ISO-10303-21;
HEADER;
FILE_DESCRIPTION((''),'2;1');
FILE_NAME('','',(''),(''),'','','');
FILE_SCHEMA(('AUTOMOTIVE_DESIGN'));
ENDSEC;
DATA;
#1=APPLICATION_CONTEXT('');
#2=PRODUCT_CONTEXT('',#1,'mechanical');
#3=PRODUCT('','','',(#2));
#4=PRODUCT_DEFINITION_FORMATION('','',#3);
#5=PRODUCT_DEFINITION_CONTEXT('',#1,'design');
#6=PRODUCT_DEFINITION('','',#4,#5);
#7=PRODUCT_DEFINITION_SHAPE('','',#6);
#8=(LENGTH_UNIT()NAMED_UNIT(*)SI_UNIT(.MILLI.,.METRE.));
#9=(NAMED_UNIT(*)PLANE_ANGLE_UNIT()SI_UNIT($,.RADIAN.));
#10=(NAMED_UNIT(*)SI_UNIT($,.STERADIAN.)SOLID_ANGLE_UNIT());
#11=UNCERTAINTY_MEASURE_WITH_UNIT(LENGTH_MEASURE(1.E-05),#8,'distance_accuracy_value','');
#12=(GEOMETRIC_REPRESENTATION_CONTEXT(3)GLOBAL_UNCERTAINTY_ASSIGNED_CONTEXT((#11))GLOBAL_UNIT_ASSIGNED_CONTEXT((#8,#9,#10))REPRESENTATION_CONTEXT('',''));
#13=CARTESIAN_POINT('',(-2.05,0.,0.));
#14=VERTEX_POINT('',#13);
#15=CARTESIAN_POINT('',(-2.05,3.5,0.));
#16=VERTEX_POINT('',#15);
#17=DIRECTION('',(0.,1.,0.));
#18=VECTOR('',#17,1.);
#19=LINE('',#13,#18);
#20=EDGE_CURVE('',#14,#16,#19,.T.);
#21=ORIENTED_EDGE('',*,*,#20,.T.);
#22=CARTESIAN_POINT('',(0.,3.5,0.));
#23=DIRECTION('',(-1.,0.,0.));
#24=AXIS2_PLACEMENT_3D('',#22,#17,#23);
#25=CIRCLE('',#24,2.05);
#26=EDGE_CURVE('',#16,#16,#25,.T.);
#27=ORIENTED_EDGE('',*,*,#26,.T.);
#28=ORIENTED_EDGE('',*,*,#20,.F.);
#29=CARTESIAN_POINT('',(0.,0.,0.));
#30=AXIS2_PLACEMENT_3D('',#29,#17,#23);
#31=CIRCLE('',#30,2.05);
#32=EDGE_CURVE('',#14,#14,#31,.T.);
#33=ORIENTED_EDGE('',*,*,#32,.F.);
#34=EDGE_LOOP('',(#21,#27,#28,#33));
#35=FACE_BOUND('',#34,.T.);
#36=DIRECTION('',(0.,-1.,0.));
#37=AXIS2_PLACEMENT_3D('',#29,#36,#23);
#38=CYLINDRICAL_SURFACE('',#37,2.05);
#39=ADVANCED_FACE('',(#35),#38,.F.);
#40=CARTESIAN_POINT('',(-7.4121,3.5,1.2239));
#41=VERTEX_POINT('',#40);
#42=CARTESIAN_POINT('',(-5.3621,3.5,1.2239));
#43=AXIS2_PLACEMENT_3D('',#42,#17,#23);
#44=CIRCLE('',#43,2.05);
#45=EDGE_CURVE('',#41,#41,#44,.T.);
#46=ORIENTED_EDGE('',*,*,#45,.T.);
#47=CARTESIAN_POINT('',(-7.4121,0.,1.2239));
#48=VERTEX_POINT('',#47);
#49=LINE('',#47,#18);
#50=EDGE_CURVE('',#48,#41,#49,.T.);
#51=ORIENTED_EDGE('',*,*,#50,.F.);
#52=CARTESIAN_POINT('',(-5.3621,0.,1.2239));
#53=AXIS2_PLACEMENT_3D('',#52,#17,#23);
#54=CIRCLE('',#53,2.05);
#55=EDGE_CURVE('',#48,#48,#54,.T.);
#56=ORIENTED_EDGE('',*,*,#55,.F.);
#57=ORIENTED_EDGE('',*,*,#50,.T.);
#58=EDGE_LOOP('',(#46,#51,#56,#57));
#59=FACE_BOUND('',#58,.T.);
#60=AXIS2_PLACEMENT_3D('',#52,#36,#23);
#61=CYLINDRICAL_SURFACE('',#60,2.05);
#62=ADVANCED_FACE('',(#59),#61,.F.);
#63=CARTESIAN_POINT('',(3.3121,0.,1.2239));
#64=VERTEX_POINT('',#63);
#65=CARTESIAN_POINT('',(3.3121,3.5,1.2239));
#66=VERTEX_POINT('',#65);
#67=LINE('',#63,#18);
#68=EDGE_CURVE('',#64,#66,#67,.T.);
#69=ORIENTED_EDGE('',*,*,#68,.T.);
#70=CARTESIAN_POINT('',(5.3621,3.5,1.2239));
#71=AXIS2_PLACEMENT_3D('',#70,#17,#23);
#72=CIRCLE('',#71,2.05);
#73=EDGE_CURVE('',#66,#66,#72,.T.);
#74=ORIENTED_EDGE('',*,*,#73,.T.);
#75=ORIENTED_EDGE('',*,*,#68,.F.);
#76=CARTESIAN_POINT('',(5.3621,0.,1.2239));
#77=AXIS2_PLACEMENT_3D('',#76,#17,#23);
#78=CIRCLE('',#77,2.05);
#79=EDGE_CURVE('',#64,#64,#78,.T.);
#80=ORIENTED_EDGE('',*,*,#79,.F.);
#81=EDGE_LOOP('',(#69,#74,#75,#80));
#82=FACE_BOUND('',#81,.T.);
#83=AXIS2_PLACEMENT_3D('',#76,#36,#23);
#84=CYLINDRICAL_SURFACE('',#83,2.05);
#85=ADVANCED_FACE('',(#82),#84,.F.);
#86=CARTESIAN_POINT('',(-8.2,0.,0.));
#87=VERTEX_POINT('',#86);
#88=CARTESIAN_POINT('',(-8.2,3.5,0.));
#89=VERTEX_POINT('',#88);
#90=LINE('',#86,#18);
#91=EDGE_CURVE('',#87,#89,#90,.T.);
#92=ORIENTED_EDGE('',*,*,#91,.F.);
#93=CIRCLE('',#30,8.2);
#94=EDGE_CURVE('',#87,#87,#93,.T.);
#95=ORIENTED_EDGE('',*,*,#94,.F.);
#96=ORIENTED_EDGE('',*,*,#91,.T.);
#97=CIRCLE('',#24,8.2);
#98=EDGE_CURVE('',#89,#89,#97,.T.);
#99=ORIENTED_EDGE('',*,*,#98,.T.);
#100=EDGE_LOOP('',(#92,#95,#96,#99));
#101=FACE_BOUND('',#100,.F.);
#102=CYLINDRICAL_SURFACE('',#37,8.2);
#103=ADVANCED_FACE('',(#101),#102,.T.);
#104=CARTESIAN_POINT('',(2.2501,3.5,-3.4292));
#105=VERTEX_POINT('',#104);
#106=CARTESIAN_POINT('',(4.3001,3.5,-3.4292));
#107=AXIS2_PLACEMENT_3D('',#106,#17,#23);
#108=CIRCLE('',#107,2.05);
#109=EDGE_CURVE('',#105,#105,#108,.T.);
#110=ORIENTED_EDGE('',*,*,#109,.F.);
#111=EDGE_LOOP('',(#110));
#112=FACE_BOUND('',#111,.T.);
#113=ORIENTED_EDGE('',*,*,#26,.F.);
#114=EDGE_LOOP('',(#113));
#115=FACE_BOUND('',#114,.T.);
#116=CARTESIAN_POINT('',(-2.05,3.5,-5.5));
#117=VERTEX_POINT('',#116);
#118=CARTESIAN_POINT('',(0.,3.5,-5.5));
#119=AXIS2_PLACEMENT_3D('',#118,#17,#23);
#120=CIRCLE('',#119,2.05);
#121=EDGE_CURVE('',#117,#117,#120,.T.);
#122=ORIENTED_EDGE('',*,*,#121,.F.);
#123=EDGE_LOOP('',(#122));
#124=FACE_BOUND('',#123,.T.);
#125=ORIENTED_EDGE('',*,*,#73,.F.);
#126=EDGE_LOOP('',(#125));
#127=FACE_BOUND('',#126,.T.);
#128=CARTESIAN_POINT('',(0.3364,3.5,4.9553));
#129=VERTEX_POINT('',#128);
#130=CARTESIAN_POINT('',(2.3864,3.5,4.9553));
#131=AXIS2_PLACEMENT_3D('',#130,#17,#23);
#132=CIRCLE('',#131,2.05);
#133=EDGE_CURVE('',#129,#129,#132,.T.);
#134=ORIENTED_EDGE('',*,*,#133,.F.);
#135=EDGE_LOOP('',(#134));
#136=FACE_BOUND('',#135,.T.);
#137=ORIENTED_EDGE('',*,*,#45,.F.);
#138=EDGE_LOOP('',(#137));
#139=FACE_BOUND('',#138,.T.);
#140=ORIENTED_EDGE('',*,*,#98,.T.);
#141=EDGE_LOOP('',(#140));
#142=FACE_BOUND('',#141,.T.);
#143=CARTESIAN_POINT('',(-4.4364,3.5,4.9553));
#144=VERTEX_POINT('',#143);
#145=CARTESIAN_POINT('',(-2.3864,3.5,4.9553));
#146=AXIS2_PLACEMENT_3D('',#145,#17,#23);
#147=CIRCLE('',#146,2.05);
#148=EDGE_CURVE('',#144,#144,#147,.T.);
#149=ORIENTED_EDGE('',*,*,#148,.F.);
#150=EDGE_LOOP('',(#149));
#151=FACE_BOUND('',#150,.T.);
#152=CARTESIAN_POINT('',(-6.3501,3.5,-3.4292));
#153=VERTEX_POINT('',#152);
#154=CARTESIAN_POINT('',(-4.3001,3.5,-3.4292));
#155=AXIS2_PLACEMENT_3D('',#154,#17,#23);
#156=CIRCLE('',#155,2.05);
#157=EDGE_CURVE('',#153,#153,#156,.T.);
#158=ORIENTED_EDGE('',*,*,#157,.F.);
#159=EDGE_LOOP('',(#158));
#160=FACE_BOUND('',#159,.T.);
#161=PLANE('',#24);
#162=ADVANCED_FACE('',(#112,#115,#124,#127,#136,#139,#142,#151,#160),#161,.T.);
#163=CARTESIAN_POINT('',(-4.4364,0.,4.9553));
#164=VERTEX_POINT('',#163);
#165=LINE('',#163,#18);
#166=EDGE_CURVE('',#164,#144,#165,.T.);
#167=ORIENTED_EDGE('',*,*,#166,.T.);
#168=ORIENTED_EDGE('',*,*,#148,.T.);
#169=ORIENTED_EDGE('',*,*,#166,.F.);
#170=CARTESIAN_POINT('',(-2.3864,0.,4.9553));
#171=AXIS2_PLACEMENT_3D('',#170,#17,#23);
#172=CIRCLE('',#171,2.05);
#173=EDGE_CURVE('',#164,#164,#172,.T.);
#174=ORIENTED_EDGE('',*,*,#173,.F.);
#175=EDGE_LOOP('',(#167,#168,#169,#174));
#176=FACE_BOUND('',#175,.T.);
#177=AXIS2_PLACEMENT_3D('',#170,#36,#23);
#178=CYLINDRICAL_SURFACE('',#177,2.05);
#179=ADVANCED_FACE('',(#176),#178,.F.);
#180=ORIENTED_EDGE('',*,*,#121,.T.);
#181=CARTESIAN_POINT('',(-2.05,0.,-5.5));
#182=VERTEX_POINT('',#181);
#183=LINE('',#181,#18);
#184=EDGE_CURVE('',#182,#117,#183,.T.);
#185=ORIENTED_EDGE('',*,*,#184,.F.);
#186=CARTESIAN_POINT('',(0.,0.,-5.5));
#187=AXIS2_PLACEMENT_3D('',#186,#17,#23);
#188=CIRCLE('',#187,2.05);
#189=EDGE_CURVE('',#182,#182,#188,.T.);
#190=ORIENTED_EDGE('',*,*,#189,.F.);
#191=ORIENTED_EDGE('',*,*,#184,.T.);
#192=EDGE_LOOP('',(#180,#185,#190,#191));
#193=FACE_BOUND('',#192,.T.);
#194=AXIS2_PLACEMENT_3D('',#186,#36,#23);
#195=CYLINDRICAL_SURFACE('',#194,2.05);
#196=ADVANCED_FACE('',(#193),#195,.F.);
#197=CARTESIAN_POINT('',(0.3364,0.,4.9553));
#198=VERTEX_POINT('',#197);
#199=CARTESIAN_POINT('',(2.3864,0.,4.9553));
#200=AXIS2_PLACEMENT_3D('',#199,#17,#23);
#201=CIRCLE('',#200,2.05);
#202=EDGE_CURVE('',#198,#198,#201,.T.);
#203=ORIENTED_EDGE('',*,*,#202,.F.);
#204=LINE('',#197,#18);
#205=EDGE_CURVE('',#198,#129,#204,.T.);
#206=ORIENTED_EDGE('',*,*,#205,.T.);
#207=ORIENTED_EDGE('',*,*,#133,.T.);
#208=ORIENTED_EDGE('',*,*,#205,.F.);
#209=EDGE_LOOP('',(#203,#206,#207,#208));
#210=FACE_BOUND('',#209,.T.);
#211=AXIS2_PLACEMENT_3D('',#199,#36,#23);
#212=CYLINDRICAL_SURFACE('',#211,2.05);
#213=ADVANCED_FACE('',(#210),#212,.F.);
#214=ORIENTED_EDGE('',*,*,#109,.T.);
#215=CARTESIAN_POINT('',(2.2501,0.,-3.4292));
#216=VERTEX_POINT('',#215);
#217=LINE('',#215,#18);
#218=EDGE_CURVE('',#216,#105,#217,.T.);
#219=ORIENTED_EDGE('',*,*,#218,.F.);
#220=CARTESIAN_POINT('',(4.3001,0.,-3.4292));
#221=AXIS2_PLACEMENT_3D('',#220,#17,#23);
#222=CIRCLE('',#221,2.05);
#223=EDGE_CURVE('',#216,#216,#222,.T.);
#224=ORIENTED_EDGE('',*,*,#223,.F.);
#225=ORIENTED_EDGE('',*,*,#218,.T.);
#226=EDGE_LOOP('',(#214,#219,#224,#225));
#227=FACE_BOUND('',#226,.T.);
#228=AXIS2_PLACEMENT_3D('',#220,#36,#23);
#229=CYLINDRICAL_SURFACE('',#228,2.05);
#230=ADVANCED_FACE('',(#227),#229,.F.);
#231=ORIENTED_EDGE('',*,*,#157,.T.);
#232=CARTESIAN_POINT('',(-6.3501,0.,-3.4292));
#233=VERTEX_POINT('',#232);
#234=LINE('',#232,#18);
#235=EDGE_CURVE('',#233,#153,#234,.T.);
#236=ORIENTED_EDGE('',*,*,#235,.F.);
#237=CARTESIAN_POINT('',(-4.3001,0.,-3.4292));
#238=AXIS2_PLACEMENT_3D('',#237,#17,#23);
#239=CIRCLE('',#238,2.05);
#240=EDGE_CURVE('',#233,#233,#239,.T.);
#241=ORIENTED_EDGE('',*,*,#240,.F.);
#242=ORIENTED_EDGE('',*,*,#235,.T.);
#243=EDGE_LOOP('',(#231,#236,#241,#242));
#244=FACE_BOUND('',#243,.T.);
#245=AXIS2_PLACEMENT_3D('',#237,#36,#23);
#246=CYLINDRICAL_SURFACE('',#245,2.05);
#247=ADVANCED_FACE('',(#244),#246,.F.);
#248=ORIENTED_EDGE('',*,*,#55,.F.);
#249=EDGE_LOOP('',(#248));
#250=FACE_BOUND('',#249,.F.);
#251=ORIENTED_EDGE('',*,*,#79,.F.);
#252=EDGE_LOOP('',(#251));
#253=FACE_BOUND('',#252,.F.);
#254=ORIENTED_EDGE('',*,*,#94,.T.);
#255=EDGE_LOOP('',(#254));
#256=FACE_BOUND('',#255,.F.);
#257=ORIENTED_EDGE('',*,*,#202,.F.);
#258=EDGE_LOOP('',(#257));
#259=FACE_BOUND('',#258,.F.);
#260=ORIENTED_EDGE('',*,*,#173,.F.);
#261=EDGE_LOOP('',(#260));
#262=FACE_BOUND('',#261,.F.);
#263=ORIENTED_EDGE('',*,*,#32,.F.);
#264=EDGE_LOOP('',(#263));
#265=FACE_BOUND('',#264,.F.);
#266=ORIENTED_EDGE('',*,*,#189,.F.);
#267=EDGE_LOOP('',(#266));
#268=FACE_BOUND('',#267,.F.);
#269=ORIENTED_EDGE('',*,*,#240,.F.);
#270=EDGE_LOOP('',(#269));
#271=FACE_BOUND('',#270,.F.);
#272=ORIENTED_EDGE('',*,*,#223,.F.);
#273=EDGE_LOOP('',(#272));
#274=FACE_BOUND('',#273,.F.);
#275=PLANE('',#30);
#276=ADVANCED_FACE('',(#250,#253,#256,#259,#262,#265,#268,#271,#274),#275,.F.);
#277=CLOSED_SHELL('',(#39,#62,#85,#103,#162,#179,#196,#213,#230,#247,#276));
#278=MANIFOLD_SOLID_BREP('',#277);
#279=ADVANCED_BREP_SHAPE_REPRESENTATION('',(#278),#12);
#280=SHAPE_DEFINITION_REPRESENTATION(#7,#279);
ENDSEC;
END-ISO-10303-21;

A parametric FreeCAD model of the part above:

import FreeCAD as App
import Part
import Sketcher
from FreeCAD import Vector
Q = App.Units.Quantity

doc = App.newDocument("Part")
body = doc.addObject("PartDesign::Body", "Body")

sketch1 = body.newObject("Sketcher::SketchObject", "Sketch")
sketch1.AttachmentSupport = (doc.getObject("XZ_Plane"), [""])
sketch1.MapMode = "FlatFace"
sketch1.addGeometry(Part.Circle(Vector(0, 0, 0), Vector(0, 0, 1), 8.2), False)
sketch1.addGeometry(Part.Circle(Vector(4.3, -3.4, 0), Vector(0, 0, 1), 2), False)
sketch1.addGeometry(Part.Circle(Vector(0, -5.5, 0), Vector(0, 0, 1), 2), False)
sketch1.addGeometry(Part.Circle(Vector(-4.3, -3.4, 0), Vector(0, 0, 1), 2), False)
sketch1.addGeometry(Part.Circle(Vector(5.4, 1.2, 0), Vector(0, 0, 1), 2), False)
sketch1.addGeometry(Part.Circle(Vector(2.4, 5, 0), Vector(0, 0, 1), 2), False)
sketch1.addGeometry(Part.Circle(Vector(0, 0, 0), Vector(0, 0, 1), 2), False)
sketch1.addGeometry(Part.Circle(Vector(-5.4, 1.2, 0), Vector(0, 0, 1), 2), False)
sketch1.addGeometry(Part.Circle(Vector(-2.4, 5, 0), Vector(0, 0, 1), 2), False)
sketch1.addConstraint(Sketcher.Constraint("Coincident", 0, 3, -1, 1))
sketch1.addConstraint(Sketcher.Constraint("Coincident", 6, 3, -1, 1))
sketch1.addConstraint(Sketcher.Constraint("Equal", 1, 2))
sketch1.addConstraint(Sketcher.Constraint("Equal", 2, 3))
sketch1.addConstraint(Sketcher.Constraint("Equal", 3, 4))
sketch1.addConstraint(Sketcher.Constraint("Equal", 4, 5))
sketch1.addConstraint(Sketcher.Constraint("Equal", 5, 6))
sketch1.addConstraint(Sketcher.Constraint("Equal", 6, 7))
sketch1.addConstraint(Sketcher.Constraint("Equal", 7, 8))
sketch1.addConstraint(Sketcher.Constraint("Symmetric", 1, 3, 3, 3, -2))
sketch1.addConstraint(Sketcher.Constraint("Symmetric", 4, 3, 7, 3, -2))
sketch1.addConstraint(Sketcher.Constraint("Symmetric", 5, 3, 8, 3, -2))
sketch1.addConstraint(Sketcher.Constraint("PointOnObject", 2, 3, -2))
sketch1.addConstraint(Sketcher.Constraint("Diameter", 0, Q("16.4 mm")))
sketch1.addConstraint(Sketcher.Constraint("Diameter", 1, Q("4.1 mm")))
sketch1.addConstraint(Sketcher.Constraint("DistanceY", 2, 3, -1, 1, Q("5.5 mm")))
sketch1.addConstraint(Sketcher.Constraint("DistanceX", -1, 1, 1, 3, Q("4.3 mm")))
sketch1.addConstraint(Sketcher.Constraint("DistanceX", -1, 1, 4, 3, Q("5.362 mm")))
sketch1.addConstraint(Sketcher.Constraint("DistanceY", -1, 1, 4, 3, Q("1.224 mm")))
sketch1.addConstraint(Sketcher.Constraint("DistanceY", 1, 3, 4, 3, Q("4.653 mm")))
sketch1.addConstraint(Sketcher.Constraint("DistanceX", -1, 1, 5, 3, Q("2.3864 mm")))
sketch1.addConstraint(Sketcher.Constraint("DistanceY", -1, 1, 5, 3, Q("4.9553 mm")))
pad1 = body.newObject("PartDesign::Pad", "Pad")
pad1.Profile = sketch1
pad1.Length = 3.5
pad1.Reversed = True

doc.recompute()
